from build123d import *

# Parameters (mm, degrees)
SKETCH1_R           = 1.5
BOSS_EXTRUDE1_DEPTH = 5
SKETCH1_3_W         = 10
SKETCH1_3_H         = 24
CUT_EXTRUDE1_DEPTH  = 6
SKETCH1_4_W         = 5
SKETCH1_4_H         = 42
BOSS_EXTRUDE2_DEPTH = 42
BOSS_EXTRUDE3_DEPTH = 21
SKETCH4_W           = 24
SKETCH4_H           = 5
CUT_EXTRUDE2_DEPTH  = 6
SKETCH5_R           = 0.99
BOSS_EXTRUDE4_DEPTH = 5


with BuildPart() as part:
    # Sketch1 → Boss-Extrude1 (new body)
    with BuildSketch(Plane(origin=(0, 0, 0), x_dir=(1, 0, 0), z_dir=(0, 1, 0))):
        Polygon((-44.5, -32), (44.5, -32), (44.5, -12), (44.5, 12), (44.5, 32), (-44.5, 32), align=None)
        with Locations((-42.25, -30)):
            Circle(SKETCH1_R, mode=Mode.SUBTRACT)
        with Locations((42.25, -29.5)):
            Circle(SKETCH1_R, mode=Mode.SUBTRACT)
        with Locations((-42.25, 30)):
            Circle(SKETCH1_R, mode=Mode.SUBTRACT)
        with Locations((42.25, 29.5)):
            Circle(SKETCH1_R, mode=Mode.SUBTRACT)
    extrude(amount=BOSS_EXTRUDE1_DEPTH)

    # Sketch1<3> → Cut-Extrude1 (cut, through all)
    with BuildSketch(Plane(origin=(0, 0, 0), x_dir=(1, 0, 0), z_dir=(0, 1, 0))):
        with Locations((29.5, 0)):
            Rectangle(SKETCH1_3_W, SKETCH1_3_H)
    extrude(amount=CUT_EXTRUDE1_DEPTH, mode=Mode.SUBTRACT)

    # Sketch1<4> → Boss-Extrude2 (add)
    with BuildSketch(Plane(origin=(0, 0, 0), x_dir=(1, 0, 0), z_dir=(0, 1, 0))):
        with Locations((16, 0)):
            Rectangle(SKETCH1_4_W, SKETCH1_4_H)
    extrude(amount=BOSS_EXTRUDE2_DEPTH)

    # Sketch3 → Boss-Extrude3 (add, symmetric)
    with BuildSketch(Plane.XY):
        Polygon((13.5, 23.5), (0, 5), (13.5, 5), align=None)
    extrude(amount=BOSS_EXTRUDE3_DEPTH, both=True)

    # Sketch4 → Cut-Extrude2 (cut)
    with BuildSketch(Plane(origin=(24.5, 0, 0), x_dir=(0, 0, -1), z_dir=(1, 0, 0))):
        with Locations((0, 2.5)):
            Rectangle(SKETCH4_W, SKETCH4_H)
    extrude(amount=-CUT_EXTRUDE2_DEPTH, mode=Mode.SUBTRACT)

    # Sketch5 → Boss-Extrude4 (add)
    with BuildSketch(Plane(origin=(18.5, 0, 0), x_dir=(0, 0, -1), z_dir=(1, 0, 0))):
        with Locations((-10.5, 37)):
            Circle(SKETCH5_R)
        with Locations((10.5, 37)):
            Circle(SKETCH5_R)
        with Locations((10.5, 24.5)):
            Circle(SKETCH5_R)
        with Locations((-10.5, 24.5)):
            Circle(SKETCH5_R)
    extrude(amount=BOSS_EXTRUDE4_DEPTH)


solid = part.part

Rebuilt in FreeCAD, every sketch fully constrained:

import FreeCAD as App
import Part
import Sketcher
from FreeCAD import Vector

doc = App.newDocument("Part")
body = doc.addObject("PartDesign::Body", "Body")

# Sketch on XZ plane
sketch1 = body.newObject("Sketcher::SketchObject", "Sketch")
sketch1.AttachmentSupport = (doc.getObject("XZ_Plane"), [""])
sketch1.MapMode = "FlatFace"
sketch1.addGeometry([
    Part.LineSegment(Vector(-44.5, 32, 0), Vector(44.5, 32, 0)),  # 0
    Part.LineSegment(Vector(44.5, 32, 0), Vector(44.5, -32, 0)),  # 1
    Part.LineSegment(Vector(44.5, -32, 0), Vector(-44.5, -32, 0)),  # 2
    Part.LineSegment(Vector(-44.5, -32, 0), Vector(-44.5, 32, 0)),  # 3
    Part.Circle(Vector(-42.25, 30, 0), Vector(0, 0, 1), 1.5),  # 4
    Part.Circle(Vector(42.25, 29.5, 0), Vector(0, 0, 1), 1.5),  # 5
    Part.Circle(Vector(-42.25, -30, 0), Vector(0, 0, 1), 1.5),  # 6
    Part.Circle(Vector(42.25, -29.5, 0), Vector(0, 0, 1), 1.5),  # 7
], False)
sketch1.addConstraint([
    Sketcher.Constraint("Coincident", 0, 2, 1, 1),
    Sketcher.Constraint("Coincident", 1, 2, 2, 1),
    Sketcher.Constraint("Coincident", 2, 2, 3, 1),
    Sketcher.Constraint("Coincident", 3, 2, 0, 1),
    Sketcher.Constraint("Horizontal", 0),
    Sketcher.Constraint("Vertical", 1),
    Sketcher.Constraint("Horizontal", 2),
    Sketcher.Constraint("Vertical", 3),
    Sketcher.Constraint("Equal", 4, 5),
    Sketcher.Constraint("Equal", 5, 6),
    Sketcher.Constraint("Equal", 6, 7),
    Sketcher.Constraint("Symmetric", 0, 2, 2, 2, -1, 1),
    Sketcher.Constraint("Symmetric", 4, 3, 6, 3, -1),
    Sketcher.Constraint("Symmetric", 5, 3, 7, 3, -1),
    Sketcher.Constraint("Diameter", 4, 3.0),
    Sketcher.Constraint("DistanceX", 0, 1, 0, 2, 89.0),
    Sketcher.Constraint("DistanceY", 1, 2, 1, 1, 64.0),
    Sketcher.Constraint("DistanceY", -1, 1, 4, 3, 30.0),
    Sketcher.Constraint("DistanceY", 7, 3, 5, 3, 59.0),
    Sketcher.Constraint("DistanceX", 4, 3, 5, 3, 84.5),
    Sketcher.Constraint("DistanceX", 4, 3, -1, 1, 42.25),
])
pad1 = body.newObject("PartDesign::Pad", "Pad")
pad1.Profile = sketch1
pad1.Length = 5
pad1.Reversed = True

# Sketch on XZ plane
sketch2 = body.newObject("Sketcher::SketchObject", "Sketch001")
sketch2.AttachmentSupport = (doc.getObject("XZ_Plane"), [""])
sketch2.MapMode = "FlatFace"
sketch2.addGeometry([
    Part.LineSegment(Vector(24.5, -12, 0), Vector(24.5, 12, 0)),
    Part.LineSegment(Vector(24.5, 12, 0), Vector(34.5, 12, 0)),
    Part.LineSegment(Vector(34.5, 12, 0), Vector(34.5, -12, 0)),
    Part.LineSegment(Vector(34.5, -12, 0), Vector(24.5, -12, 0)),
], False)
sketch2.addConstraint([
    Sketcher.Constraint("Coincident", 0, 2, 1, 1),
    Sketcher.Constraint("Coincident", 1, 2, 2, 1),
    Sketcher.Constraint("Coincident", 2, 2, 3, 1),
    Sketcher.Constraint("Coincident", 3, 2, 0, 1),
    Sketcher.Constraint("Vertical", 0),
    Sketcher.Constraint("Horizontal", 1),
    Sketcher.Constraint("Vertical", 2),
    Sketcher.Constraint("Horizontal", 3),
    Sketcher.Constraint("DistanceX", 1, 1, 1, 2, 10.0),
    Sketcher.Constraint("DistanceY", 0, 1, 0, 2, 24.0),
    Sketcher.Constraint("DistanceY", -1, 1, 0, 2, 12.0),
    Sketcher.Constraint("DistanceX", -1, 1, 0, 2, 24.5),
])
pocket1 = body.newObject("PartDesign::Pocket", "Pocket")
pocket1.Profile = sketch2
pocket1.Type = "ThroughAll"

# Sketch on XZ plane
sketch3 = body.newObject("Sketcher::SketchObject", "Sketch002")
sketch3.AttachmentSupport = (doc.getObject("XZ_Plane"), [""])
sketch3.MapMode = "FlatFace"
sketch3.addGeometry([
    Part.LineSegment(Vector(13.5, -21, 0), Vector(13.5, 21, 0)),
    Part.LineSegment(Vector(13.5, 21, 0), Vector(18.5, 21, 0)),
    Part.LineSegment(Vector(18.5, 21, 0), Vector(18.5, -21, 0)),
    Part.LineSegment(Vector(18.5, -21, 0), Vector(13.5, -21, 0)),
], False)
sketch3.addConstraint([
    Sketcher.Constraint("Coincident", 0, 2, 1, 1),
    Sketcher.Constraint("Coincident", 1, 2, 2, 1),
    Sketcher.Constraint("Coincident", 2, 2, 3, 1),
    Sketcher.Constraint("Coincident", 3, 2, 0, 1),
    Sketcher.Constraint("Vertical", 0),
    Sketcher.Constraint("Horizontal", 1),
    Sketcher.Constraint("Vertical", 2),
    Sketcher.Constraint("Horizontal", 3),
    Sketcher.Constraint("DistanceX", 1, 1, 1, 2, 5.0),
    Sketcher.Constraint("DistanceY", 0, 1, 0, 2, 42.0),
    Sketcher.Constraint("DistanceY", -1, 1, 0, 2, 21.0),
    Sketcher.Constraint("DistanceX", -1, 1, 0, 2, 13.5),
])
pad2 = body.newObject("PartDesign::Pad", "Pad001")
pad2.Profile = sketch3
pad2.Length = 42
pad2.Reversed = True

# Sketch on XY plane
sketch4 = body.newObject("Sketcher::SketchObject", "Sketch003")
sketch4.AttachmentSupport = (doc.getObject("XY_Plane"), [""])
sketch4.MapMode = "FlatFace"
sketch4.addGeometry([
    Part.LineSegment(Vector(13.5, 23.5, 0), Vector(0, 5, 0)),
    Part.LineSegment(Vector(0, 5, 0), Vector(13.5, 5, 0)),
    Part.LineSegment(Vector(13.5, 5, 0), Vector(13.5, 23.5, 0)),
], False)
sketch4.addConstraint([
    Sketcher.Constraint("Coincident", 0, 2, 1, 1),
    Sketcher.Constraint("Coincident", 1, 2, 2, 1),
    Sketcher.Constraint("Coincident", 2, 2, 0, 1),
    Sketcher.Constraint("Horizontal", 1),
    Sketcher.Constraint("Vertical", 2),
    Sketcher.Constraint("PointOnObject", 0, 2, -2),
    Sketcher.Constraint("DistanceX", 1, 1, 1, 2, 13.5),
    Sketcher.Constraint("DistanceY", 2, 1, 2, 2, 18.5),
    Sketcher.Constraint("DistanceY", -1, 1, 0, 2, 5.0),
])
pad3 = body.newObject("PartDesign::Pad", "Pad002")
pad3.Profile = sketch4
pad3.Length = 42
pad3.Midplane = True

# Sketch on YZ plane
sketch5 = body.newObject("Sketcher::SketchObject", "Sketch004")
sketch5.AttachmentSupport = (doc.getObject("YZ_Plane"), [""])
sketch5.MapMode = "FlatFace"
sketch5.AttachmentOffset = App.Placement(Vector(0, 0, 24.5), App.Rotation())
sketch5.addGeometry([
    Part.LineSegment(Vector(5, 12, 0), Vector(0, 12, 0)),
    Part.LineSegment(Vector(0, 12, 0), Vector(0, -12, 0)),
    Part.LineSegment(Vector(0, -12, 0), Vector(5, -12, 0)),
    Part.LineSegment(Vector(5, -12, 0), Vector(5, 12, 0)),
], False)
sketch5.addConstraint([
    Sketcher.Constraint("Coincident", 0, 2, 1, 1),
    Sketcher.Constraint("Coincident", 1, 2, 2, 1),
    Sketcher.Constraint("Coincident", 2, 2, 3, 1),
    Sketcher.Constraint("Coincident", 3, 2, 0, 1),
    Sketcher.Constraint("Horizontal", 0),
    Sketcher.Constraint("Vertical", 1),
    Sketcher.Constraint("Horizontal", 2),
    Sketcher.Constraint("Vertical", 3),
    Sketcher.Constraint("Symmetric", 0, 2, 1, 2, -1, 1),
    Sketcher.Constraint("DistanceX", 0, 2, 0, 1, 5.0),
    Sketcher.Constraint("DistanceY", 1, 2, 1, 1, 24.0),
])
pocket2 = body.newObject("PartDesign::Pocket", "Pocket001")
pocket2.Profile = sketch5
pocket2.Length = 6

# Sketch on YZ plane
sketch6 = body.newObject("Sketcher::SketchObject", "Sketch005")
sketch6.AttachmentSupport = (doc.getObject("YZ_Plane"), [""])
sketch6.MapMode = "FlatFace"
sketch6.AttachmentOffset = App.Placement(Vector(0, 0, 18.5), App.Rotation())
sketch6.addGeometry([
    Part.Circle(Vector(37, 10.5, 0), Vector(0, 0, 1), 0.99),
    Part.Circle(Vector(37, -10.5, 0), Vector(0, 0, 1), 0.99),
    Part.Circle(Vector(24.5, -10.5, 0), Vector(0, 0, 1), 0.99),
    Part.Circle(Vector(24.5, 10.5, 0), Vector(0, 0, 1), 0.99),
], False)
sketch6.addConstraint([
    Sketcher.Constraint("Equal", 0, 1),
    Sketcher.Constraint("Equal", 1, 2),
    Sketcher.Constraint("Equal", 2, 3),
    Sketcher.Constraint("Symmetric", 0, 3, 1, 3, -1),
    Sketcher.Constraint("Symmetric", 2, 3, 3, 3, -1),
    Sketcher.Constraint("Horizontal", 1, 3, 2, 3),
    Sketcher.Constraint("Diameter", 0, 1.98),
    Sketcher.Constraint("DistanceX", -1, 1, 0, 3, 37.0),
    Sketcher.Constraint("DistanceY", 1, 3, 0, 3, 21.0),
    Sketcher.Constraint("DistanceX", -1, 1, 2, 3, 24.5),
])
pad4 = body.newObject("PartDesign::Pad", "Pad003")
pad4.Profile = sketch6
pad4.Length = 5

doc.recompute()
